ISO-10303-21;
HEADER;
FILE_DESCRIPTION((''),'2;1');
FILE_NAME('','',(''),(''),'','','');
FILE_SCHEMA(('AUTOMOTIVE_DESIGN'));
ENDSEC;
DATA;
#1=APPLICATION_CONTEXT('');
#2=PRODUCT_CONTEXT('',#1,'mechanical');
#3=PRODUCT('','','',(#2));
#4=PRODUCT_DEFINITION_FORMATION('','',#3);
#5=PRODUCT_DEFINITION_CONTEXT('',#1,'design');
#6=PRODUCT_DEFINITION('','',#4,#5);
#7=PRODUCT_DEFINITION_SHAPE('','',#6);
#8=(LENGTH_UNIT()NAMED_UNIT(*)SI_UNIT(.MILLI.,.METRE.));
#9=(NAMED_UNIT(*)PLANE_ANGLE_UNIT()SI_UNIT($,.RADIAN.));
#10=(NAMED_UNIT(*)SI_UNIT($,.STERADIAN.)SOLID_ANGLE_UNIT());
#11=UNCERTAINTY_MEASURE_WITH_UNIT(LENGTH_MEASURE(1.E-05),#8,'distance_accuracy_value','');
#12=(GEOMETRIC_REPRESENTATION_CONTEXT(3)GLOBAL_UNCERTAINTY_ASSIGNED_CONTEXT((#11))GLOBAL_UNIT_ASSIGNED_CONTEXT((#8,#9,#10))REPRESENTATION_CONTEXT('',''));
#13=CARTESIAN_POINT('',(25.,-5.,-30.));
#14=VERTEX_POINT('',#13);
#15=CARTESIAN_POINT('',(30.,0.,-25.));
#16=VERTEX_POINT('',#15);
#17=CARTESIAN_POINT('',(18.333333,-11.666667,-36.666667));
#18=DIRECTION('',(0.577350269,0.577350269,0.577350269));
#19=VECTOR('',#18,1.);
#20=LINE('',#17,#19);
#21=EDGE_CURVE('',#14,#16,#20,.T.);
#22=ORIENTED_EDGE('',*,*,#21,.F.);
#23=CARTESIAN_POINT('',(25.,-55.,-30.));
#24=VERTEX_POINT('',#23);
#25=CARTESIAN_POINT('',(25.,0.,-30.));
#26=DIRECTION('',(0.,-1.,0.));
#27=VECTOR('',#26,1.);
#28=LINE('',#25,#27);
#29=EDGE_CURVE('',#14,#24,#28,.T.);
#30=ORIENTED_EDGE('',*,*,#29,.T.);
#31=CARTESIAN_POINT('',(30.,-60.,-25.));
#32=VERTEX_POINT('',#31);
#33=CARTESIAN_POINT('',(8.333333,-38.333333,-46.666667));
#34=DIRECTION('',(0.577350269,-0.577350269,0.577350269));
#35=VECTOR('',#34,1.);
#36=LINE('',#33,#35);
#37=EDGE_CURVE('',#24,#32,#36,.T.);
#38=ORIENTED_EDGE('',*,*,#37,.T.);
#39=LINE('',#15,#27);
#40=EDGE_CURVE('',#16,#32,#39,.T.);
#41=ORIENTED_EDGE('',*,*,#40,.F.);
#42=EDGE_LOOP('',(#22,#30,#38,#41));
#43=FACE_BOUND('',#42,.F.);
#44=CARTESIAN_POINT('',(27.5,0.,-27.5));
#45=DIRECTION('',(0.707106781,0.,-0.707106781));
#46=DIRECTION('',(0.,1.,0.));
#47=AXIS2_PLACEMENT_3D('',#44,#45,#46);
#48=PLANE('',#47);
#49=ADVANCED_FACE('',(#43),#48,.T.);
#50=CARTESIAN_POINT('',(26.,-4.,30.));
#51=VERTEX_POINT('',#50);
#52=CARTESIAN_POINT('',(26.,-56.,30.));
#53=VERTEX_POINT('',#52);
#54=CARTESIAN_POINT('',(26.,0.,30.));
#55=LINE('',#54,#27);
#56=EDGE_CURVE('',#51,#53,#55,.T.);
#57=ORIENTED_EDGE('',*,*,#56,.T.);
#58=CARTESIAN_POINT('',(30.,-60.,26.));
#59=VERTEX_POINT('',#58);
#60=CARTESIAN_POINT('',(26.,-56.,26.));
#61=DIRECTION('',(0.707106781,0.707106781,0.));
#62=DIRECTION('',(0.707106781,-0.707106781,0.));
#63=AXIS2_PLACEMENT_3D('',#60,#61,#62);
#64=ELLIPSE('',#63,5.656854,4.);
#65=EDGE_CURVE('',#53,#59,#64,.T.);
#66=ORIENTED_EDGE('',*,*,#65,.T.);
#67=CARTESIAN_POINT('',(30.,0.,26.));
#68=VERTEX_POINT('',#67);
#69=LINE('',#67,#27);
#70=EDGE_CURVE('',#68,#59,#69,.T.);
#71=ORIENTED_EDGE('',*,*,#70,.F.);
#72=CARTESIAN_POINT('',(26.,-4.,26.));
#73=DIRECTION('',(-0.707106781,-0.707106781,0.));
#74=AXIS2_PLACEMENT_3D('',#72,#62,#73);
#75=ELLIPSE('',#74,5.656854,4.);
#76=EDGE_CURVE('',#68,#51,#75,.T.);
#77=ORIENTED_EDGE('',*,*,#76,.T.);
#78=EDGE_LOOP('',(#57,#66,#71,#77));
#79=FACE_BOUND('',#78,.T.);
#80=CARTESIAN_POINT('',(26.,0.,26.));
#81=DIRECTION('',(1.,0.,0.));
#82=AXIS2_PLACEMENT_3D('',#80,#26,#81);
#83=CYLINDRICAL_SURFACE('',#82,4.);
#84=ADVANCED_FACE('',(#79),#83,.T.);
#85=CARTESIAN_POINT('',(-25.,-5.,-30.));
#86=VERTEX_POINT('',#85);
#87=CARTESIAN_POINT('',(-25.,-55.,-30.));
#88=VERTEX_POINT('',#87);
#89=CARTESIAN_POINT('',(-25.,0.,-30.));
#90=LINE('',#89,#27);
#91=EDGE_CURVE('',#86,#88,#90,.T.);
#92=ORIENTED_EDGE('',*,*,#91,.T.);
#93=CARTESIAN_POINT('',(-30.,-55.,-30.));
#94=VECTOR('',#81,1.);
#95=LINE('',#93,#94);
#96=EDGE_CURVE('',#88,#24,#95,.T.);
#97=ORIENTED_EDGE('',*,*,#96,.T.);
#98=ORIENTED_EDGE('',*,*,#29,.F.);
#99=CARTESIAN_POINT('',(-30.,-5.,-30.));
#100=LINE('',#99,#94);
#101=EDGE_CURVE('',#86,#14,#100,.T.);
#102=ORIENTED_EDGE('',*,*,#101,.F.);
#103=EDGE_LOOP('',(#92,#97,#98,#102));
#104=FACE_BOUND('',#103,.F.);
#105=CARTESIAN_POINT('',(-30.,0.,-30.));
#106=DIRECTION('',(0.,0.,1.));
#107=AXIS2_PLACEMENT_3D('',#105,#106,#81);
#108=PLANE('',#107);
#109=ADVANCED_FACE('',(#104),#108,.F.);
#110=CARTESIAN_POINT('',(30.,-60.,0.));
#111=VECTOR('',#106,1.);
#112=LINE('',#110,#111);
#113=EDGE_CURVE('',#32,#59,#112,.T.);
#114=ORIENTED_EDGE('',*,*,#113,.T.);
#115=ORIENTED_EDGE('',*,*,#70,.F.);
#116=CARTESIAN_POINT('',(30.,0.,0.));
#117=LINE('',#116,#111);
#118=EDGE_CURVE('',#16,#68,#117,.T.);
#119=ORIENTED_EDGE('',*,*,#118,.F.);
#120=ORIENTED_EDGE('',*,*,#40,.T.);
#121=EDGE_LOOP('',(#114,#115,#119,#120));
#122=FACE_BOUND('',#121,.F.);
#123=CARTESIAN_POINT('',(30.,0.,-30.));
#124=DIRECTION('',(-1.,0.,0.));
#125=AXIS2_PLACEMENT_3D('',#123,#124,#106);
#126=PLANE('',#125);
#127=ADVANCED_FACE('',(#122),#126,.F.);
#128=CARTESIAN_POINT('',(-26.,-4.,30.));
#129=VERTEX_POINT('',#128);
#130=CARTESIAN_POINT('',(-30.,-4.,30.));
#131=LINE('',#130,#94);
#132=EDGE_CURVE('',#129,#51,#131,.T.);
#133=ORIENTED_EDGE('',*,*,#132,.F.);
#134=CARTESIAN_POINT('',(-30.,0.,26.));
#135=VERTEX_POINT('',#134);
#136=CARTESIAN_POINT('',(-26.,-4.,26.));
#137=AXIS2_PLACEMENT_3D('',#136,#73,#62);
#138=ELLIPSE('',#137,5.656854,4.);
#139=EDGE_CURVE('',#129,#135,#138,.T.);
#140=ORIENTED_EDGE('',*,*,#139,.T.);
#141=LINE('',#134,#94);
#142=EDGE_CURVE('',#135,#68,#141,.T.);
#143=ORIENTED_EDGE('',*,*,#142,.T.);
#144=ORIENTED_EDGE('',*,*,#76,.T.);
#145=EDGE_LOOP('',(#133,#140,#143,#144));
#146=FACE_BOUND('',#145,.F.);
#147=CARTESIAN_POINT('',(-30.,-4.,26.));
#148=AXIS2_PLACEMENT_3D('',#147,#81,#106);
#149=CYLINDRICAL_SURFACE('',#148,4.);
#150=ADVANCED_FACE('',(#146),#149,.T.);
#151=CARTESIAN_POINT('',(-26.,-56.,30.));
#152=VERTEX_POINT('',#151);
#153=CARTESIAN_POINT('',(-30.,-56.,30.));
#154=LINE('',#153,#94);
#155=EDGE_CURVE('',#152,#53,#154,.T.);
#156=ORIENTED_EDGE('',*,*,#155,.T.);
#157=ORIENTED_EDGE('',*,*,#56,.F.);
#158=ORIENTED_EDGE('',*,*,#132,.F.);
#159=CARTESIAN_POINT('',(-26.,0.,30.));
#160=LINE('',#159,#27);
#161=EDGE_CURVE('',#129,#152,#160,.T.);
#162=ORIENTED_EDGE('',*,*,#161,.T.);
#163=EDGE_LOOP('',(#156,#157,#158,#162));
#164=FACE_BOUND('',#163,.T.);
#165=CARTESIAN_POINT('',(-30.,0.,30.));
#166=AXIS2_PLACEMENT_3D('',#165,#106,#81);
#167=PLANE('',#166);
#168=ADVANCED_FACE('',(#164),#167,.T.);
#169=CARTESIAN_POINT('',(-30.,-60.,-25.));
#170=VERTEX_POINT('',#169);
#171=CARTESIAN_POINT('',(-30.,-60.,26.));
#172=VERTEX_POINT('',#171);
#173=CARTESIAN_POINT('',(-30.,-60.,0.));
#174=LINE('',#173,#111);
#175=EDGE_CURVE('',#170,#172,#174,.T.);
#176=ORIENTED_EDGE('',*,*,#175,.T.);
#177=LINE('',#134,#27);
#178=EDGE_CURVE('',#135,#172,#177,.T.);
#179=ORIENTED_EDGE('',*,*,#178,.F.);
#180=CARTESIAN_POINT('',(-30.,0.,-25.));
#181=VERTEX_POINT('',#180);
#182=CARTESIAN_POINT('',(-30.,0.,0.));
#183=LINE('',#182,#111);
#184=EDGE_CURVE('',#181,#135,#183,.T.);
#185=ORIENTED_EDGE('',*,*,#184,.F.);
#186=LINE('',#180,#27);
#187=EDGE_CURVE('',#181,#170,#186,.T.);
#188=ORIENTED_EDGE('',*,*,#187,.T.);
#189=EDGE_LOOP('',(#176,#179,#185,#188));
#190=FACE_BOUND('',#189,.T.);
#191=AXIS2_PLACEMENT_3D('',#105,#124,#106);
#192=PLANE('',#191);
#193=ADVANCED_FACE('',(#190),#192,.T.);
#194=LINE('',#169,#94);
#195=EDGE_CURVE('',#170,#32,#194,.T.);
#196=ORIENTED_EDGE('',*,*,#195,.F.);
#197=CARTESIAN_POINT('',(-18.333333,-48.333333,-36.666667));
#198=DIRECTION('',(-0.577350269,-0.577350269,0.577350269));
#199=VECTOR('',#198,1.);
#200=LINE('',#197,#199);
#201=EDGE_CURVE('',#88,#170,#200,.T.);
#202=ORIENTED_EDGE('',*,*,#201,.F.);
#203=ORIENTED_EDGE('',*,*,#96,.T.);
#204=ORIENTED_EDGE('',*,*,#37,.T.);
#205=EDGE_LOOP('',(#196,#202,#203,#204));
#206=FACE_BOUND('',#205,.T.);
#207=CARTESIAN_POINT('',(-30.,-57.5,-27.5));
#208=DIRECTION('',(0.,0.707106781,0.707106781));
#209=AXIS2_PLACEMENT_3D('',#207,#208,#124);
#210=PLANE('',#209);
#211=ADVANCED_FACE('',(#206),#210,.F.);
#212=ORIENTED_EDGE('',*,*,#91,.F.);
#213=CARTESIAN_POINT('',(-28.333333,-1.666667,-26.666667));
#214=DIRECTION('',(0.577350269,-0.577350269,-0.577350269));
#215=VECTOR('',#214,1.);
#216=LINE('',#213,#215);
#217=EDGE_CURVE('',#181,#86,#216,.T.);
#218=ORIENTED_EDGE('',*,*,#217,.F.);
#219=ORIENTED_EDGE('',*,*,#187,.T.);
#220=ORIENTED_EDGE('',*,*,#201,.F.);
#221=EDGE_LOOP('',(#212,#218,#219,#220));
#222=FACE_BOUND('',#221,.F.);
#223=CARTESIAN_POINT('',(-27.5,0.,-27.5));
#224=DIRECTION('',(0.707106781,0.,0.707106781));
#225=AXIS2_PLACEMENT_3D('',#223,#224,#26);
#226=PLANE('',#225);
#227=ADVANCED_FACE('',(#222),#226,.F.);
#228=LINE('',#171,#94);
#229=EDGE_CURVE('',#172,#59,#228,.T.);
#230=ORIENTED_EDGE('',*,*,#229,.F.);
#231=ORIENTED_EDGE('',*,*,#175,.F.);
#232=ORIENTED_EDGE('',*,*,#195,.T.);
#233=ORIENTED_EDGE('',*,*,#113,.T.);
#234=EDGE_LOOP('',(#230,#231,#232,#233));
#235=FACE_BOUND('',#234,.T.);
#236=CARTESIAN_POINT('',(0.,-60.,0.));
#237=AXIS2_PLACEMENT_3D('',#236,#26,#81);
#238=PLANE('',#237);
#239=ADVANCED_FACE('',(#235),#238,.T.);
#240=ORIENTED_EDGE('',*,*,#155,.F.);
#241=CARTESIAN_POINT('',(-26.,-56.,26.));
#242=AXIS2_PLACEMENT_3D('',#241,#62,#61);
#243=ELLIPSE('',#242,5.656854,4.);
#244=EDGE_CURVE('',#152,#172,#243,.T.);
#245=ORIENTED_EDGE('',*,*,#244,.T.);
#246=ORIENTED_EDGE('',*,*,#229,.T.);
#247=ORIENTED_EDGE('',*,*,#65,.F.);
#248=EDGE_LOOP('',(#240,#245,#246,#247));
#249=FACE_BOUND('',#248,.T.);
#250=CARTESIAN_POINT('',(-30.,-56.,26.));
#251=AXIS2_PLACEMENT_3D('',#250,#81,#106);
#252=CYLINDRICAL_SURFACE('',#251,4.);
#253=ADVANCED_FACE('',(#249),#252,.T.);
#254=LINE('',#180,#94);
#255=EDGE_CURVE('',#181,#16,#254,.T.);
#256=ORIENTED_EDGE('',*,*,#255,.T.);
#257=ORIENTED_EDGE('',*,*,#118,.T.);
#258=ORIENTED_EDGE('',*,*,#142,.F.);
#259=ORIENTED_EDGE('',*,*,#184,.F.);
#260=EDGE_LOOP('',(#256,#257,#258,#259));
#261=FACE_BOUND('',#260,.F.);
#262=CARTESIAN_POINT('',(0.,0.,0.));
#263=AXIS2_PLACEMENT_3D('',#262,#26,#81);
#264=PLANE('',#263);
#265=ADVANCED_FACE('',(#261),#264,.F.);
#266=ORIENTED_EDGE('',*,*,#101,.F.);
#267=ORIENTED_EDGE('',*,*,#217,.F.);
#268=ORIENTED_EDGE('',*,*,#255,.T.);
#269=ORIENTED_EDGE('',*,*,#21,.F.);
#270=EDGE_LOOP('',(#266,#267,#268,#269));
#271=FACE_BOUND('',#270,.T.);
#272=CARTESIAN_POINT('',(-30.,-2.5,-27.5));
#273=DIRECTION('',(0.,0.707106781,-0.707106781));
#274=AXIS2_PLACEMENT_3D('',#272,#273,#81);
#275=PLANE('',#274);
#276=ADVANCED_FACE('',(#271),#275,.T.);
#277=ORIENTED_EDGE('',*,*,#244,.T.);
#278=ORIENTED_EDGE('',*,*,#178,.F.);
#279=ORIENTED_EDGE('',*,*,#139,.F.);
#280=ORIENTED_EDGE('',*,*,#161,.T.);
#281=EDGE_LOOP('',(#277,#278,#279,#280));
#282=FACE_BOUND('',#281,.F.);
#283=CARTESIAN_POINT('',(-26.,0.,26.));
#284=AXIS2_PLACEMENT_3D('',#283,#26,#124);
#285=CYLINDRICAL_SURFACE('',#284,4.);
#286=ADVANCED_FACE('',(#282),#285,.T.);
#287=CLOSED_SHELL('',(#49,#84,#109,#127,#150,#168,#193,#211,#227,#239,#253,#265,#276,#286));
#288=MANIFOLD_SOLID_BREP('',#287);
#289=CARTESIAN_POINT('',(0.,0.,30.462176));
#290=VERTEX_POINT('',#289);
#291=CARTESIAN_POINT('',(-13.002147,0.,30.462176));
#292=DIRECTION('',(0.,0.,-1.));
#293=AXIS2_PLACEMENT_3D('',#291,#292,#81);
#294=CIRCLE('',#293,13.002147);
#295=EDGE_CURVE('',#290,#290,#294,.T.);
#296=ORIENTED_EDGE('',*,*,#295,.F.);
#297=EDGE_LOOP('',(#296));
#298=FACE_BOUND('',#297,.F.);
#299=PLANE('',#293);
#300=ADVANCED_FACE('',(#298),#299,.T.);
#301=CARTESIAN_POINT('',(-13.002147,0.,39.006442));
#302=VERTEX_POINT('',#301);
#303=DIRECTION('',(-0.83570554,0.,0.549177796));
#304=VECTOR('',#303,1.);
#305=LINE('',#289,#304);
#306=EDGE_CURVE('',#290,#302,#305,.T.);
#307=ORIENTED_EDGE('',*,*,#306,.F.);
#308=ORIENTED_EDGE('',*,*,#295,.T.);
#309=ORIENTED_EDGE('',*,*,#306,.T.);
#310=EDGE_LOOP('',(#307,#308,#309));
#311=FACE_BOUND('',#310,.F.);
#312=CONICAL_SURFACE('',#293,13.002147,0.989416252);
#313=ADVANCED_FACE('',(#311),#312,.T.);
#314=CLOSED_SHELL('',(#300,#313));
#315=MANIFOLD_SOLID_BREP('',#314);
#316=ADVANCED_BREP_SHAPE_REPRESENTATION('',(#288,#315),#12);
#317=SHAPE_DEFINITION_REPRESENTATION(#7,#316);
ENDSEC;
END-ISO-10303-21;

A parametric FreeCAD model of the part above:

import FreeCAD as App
import Part
import Sketcher
from FreeCAD import Vector
Q = App.Units.Quantity


def edges_at(feature, points):
    """Names of the edges that pass closest to the given points."""
    edges = feature.Shape.Edges
    near = lambda p: min(range(len(edges)), key=lambda i: edges[i].distToShape(Part.Vertex(*p))[0])
    return sorted({f"Edge{near(p) + 1}" for p in points})


def add_polygon(sketch, points):
    """Adds a closed chain of lines whose ends are joined by coincident constraints."""
    first, n = sketch.GeometryCount, len(points)
    for a, b in zip(points, points[1:] + points[:1]):
        sketch.addGeometry(Part.LineSegment(App.Vector(*a, 0), App.Vector(*b, 0)), False)
    for i in range(n):
        sketch.addConstraint(Sketcher.Constraint("Coincident", first + i, 2, first + (i + 1) % n, 1))

doc = App.newDocument("Part")
params = doc.addObject("Spreadsheet::Sheet", "Params")
for row, (alias, value) in enumerate([
    ("sketch1_width", "60 mm"),
    ("pad1_length", "60 mm"),
    ("fillet_radius", "4 mm"),
    ("chamfer_size", "5 mm"),
    ("revolution_angle", "360 deg"),
], start=1):
    params.set(f"A{row}", alias)
    params.set(f"B{row}", "=" + value)
    params.setAlias(f"B{row}", alias)

body = doc.addObject("PartDesign::Body", "Body")

sketch1 = doc.addObject("Sketcher::SketchObject", "Sketch")
body.addObject(sketch1)
sketch1.AttachmentSupport = (doc.XZ_Plane, [""])
sketch1.MapMode = "FlatFace"
add_polygon(sketch1, [(-30, 30), (-30, -30), (30, -30), (30, 30)])
sketch1.addConstraint([
    Sketcher.Constraint("Vertical", 0),
    Sketcher.Constraint("Horizontal", 1),
    Sketcher.Constraint("Vertical", 2),
    Sketcher.Constraint("Horizontal", 3),
    Sketcher.Constraint("Symmetric", 0, 2, 2, 2, -1, 1),
    Sketcher.Constraint("Equal", 3, 0),
    Sketcher.Constraint("DistanceX", 1, 1, 1, 2, Q("60 mm")),
])
sketch1.setExpression("Constraints[10]", "Params.sketch1_width")
pad1 = doc.addObject("PartDesign::Pad", "Pad")
body.addObject(pad1)
pad1.Profile = sketch1
pad1.setExpression("Length", "Params.pad1_length")
doc.recompute()

fillet = doc.addObject("PartDesign::Fillet", "Fillet")
body.addObject(fillet)
fillet.Base = (pad1, edges_at(pad1, [
    (0, -60, 30),
    (30, -30, 30),
    (0, 0, 30),
    (-30, -30, 30),
]))
fillet.setExpression("Radius", "Params.fillet_radius")
doc.recompute()

chamfer = doc.addObject("PartDesign::Chamfer", "Chamfer")
body.addObject(chamfer)
chamfer.Base = (fillet, edges_at(fillet, [
    (0, -60, -30),
    (30, -30, -30),
    (0, 0, -30),
    (-30, -30, -30),
]))
chamfer.setExpression("Size", "Params.chamfer_size")
body2 = doc.addObject("PartDesign::Body", "Body001")

sketch2 = doc.addObject("Sketcher::SketchObject", "Sketch001")
body2.addObject(sketch2)
sketch2.AttachmentSupport = (doc.getObject("XZ_Plane001"), [""])
sketch2.MapMode = "FlatFace"
add_polygon(sketch2, [(0, 30.462176), (-13.002147, 39.006442), (-13.002147, 30.462176)])
sketch2.addGeometry(Part.LineSegment(Vector(-13.002147, 39.006442, 0), Vector(-13.002147, 30.462176, 0)), True)
sketch2.addConstraint([
    Sketcher.Constraint("Vertical", 1),
    Sketcher.Constraint("Horizontal", 2),
    Sketcher.Constraint("Vertical", 3),
    Sketcher.Constraint("Coincident", 3, 1, 0, 2),
    Sketcher.Constraint("PointOnObject", 2, 2, -2),
    Sketcher.Constraint("Horizontal", 2, 2, 3, 2),
    Sketcher.Constraint("DistanceX", 2, 1, 2, 2, Q("13.002147 mm")),
    Sketcher.Constraint("DistanceY", 1, 2, 1, 1, Q("8.544266 mm")),
    Sketcher.Constraint("DistanceY", -1, 1, 0, 2, Q("39.006442 mm")),
])
revolution = doc.addObject("PartDesign::Revolution", "Revolution")
body2.addObject(revolution)
revolution.Profile = sketch2
revolution.ReferenceAxis = (sketch2, ["Axis0"])
revolution.setExpression("Angle", "Params.revolution_angle")

doc.recompute()
